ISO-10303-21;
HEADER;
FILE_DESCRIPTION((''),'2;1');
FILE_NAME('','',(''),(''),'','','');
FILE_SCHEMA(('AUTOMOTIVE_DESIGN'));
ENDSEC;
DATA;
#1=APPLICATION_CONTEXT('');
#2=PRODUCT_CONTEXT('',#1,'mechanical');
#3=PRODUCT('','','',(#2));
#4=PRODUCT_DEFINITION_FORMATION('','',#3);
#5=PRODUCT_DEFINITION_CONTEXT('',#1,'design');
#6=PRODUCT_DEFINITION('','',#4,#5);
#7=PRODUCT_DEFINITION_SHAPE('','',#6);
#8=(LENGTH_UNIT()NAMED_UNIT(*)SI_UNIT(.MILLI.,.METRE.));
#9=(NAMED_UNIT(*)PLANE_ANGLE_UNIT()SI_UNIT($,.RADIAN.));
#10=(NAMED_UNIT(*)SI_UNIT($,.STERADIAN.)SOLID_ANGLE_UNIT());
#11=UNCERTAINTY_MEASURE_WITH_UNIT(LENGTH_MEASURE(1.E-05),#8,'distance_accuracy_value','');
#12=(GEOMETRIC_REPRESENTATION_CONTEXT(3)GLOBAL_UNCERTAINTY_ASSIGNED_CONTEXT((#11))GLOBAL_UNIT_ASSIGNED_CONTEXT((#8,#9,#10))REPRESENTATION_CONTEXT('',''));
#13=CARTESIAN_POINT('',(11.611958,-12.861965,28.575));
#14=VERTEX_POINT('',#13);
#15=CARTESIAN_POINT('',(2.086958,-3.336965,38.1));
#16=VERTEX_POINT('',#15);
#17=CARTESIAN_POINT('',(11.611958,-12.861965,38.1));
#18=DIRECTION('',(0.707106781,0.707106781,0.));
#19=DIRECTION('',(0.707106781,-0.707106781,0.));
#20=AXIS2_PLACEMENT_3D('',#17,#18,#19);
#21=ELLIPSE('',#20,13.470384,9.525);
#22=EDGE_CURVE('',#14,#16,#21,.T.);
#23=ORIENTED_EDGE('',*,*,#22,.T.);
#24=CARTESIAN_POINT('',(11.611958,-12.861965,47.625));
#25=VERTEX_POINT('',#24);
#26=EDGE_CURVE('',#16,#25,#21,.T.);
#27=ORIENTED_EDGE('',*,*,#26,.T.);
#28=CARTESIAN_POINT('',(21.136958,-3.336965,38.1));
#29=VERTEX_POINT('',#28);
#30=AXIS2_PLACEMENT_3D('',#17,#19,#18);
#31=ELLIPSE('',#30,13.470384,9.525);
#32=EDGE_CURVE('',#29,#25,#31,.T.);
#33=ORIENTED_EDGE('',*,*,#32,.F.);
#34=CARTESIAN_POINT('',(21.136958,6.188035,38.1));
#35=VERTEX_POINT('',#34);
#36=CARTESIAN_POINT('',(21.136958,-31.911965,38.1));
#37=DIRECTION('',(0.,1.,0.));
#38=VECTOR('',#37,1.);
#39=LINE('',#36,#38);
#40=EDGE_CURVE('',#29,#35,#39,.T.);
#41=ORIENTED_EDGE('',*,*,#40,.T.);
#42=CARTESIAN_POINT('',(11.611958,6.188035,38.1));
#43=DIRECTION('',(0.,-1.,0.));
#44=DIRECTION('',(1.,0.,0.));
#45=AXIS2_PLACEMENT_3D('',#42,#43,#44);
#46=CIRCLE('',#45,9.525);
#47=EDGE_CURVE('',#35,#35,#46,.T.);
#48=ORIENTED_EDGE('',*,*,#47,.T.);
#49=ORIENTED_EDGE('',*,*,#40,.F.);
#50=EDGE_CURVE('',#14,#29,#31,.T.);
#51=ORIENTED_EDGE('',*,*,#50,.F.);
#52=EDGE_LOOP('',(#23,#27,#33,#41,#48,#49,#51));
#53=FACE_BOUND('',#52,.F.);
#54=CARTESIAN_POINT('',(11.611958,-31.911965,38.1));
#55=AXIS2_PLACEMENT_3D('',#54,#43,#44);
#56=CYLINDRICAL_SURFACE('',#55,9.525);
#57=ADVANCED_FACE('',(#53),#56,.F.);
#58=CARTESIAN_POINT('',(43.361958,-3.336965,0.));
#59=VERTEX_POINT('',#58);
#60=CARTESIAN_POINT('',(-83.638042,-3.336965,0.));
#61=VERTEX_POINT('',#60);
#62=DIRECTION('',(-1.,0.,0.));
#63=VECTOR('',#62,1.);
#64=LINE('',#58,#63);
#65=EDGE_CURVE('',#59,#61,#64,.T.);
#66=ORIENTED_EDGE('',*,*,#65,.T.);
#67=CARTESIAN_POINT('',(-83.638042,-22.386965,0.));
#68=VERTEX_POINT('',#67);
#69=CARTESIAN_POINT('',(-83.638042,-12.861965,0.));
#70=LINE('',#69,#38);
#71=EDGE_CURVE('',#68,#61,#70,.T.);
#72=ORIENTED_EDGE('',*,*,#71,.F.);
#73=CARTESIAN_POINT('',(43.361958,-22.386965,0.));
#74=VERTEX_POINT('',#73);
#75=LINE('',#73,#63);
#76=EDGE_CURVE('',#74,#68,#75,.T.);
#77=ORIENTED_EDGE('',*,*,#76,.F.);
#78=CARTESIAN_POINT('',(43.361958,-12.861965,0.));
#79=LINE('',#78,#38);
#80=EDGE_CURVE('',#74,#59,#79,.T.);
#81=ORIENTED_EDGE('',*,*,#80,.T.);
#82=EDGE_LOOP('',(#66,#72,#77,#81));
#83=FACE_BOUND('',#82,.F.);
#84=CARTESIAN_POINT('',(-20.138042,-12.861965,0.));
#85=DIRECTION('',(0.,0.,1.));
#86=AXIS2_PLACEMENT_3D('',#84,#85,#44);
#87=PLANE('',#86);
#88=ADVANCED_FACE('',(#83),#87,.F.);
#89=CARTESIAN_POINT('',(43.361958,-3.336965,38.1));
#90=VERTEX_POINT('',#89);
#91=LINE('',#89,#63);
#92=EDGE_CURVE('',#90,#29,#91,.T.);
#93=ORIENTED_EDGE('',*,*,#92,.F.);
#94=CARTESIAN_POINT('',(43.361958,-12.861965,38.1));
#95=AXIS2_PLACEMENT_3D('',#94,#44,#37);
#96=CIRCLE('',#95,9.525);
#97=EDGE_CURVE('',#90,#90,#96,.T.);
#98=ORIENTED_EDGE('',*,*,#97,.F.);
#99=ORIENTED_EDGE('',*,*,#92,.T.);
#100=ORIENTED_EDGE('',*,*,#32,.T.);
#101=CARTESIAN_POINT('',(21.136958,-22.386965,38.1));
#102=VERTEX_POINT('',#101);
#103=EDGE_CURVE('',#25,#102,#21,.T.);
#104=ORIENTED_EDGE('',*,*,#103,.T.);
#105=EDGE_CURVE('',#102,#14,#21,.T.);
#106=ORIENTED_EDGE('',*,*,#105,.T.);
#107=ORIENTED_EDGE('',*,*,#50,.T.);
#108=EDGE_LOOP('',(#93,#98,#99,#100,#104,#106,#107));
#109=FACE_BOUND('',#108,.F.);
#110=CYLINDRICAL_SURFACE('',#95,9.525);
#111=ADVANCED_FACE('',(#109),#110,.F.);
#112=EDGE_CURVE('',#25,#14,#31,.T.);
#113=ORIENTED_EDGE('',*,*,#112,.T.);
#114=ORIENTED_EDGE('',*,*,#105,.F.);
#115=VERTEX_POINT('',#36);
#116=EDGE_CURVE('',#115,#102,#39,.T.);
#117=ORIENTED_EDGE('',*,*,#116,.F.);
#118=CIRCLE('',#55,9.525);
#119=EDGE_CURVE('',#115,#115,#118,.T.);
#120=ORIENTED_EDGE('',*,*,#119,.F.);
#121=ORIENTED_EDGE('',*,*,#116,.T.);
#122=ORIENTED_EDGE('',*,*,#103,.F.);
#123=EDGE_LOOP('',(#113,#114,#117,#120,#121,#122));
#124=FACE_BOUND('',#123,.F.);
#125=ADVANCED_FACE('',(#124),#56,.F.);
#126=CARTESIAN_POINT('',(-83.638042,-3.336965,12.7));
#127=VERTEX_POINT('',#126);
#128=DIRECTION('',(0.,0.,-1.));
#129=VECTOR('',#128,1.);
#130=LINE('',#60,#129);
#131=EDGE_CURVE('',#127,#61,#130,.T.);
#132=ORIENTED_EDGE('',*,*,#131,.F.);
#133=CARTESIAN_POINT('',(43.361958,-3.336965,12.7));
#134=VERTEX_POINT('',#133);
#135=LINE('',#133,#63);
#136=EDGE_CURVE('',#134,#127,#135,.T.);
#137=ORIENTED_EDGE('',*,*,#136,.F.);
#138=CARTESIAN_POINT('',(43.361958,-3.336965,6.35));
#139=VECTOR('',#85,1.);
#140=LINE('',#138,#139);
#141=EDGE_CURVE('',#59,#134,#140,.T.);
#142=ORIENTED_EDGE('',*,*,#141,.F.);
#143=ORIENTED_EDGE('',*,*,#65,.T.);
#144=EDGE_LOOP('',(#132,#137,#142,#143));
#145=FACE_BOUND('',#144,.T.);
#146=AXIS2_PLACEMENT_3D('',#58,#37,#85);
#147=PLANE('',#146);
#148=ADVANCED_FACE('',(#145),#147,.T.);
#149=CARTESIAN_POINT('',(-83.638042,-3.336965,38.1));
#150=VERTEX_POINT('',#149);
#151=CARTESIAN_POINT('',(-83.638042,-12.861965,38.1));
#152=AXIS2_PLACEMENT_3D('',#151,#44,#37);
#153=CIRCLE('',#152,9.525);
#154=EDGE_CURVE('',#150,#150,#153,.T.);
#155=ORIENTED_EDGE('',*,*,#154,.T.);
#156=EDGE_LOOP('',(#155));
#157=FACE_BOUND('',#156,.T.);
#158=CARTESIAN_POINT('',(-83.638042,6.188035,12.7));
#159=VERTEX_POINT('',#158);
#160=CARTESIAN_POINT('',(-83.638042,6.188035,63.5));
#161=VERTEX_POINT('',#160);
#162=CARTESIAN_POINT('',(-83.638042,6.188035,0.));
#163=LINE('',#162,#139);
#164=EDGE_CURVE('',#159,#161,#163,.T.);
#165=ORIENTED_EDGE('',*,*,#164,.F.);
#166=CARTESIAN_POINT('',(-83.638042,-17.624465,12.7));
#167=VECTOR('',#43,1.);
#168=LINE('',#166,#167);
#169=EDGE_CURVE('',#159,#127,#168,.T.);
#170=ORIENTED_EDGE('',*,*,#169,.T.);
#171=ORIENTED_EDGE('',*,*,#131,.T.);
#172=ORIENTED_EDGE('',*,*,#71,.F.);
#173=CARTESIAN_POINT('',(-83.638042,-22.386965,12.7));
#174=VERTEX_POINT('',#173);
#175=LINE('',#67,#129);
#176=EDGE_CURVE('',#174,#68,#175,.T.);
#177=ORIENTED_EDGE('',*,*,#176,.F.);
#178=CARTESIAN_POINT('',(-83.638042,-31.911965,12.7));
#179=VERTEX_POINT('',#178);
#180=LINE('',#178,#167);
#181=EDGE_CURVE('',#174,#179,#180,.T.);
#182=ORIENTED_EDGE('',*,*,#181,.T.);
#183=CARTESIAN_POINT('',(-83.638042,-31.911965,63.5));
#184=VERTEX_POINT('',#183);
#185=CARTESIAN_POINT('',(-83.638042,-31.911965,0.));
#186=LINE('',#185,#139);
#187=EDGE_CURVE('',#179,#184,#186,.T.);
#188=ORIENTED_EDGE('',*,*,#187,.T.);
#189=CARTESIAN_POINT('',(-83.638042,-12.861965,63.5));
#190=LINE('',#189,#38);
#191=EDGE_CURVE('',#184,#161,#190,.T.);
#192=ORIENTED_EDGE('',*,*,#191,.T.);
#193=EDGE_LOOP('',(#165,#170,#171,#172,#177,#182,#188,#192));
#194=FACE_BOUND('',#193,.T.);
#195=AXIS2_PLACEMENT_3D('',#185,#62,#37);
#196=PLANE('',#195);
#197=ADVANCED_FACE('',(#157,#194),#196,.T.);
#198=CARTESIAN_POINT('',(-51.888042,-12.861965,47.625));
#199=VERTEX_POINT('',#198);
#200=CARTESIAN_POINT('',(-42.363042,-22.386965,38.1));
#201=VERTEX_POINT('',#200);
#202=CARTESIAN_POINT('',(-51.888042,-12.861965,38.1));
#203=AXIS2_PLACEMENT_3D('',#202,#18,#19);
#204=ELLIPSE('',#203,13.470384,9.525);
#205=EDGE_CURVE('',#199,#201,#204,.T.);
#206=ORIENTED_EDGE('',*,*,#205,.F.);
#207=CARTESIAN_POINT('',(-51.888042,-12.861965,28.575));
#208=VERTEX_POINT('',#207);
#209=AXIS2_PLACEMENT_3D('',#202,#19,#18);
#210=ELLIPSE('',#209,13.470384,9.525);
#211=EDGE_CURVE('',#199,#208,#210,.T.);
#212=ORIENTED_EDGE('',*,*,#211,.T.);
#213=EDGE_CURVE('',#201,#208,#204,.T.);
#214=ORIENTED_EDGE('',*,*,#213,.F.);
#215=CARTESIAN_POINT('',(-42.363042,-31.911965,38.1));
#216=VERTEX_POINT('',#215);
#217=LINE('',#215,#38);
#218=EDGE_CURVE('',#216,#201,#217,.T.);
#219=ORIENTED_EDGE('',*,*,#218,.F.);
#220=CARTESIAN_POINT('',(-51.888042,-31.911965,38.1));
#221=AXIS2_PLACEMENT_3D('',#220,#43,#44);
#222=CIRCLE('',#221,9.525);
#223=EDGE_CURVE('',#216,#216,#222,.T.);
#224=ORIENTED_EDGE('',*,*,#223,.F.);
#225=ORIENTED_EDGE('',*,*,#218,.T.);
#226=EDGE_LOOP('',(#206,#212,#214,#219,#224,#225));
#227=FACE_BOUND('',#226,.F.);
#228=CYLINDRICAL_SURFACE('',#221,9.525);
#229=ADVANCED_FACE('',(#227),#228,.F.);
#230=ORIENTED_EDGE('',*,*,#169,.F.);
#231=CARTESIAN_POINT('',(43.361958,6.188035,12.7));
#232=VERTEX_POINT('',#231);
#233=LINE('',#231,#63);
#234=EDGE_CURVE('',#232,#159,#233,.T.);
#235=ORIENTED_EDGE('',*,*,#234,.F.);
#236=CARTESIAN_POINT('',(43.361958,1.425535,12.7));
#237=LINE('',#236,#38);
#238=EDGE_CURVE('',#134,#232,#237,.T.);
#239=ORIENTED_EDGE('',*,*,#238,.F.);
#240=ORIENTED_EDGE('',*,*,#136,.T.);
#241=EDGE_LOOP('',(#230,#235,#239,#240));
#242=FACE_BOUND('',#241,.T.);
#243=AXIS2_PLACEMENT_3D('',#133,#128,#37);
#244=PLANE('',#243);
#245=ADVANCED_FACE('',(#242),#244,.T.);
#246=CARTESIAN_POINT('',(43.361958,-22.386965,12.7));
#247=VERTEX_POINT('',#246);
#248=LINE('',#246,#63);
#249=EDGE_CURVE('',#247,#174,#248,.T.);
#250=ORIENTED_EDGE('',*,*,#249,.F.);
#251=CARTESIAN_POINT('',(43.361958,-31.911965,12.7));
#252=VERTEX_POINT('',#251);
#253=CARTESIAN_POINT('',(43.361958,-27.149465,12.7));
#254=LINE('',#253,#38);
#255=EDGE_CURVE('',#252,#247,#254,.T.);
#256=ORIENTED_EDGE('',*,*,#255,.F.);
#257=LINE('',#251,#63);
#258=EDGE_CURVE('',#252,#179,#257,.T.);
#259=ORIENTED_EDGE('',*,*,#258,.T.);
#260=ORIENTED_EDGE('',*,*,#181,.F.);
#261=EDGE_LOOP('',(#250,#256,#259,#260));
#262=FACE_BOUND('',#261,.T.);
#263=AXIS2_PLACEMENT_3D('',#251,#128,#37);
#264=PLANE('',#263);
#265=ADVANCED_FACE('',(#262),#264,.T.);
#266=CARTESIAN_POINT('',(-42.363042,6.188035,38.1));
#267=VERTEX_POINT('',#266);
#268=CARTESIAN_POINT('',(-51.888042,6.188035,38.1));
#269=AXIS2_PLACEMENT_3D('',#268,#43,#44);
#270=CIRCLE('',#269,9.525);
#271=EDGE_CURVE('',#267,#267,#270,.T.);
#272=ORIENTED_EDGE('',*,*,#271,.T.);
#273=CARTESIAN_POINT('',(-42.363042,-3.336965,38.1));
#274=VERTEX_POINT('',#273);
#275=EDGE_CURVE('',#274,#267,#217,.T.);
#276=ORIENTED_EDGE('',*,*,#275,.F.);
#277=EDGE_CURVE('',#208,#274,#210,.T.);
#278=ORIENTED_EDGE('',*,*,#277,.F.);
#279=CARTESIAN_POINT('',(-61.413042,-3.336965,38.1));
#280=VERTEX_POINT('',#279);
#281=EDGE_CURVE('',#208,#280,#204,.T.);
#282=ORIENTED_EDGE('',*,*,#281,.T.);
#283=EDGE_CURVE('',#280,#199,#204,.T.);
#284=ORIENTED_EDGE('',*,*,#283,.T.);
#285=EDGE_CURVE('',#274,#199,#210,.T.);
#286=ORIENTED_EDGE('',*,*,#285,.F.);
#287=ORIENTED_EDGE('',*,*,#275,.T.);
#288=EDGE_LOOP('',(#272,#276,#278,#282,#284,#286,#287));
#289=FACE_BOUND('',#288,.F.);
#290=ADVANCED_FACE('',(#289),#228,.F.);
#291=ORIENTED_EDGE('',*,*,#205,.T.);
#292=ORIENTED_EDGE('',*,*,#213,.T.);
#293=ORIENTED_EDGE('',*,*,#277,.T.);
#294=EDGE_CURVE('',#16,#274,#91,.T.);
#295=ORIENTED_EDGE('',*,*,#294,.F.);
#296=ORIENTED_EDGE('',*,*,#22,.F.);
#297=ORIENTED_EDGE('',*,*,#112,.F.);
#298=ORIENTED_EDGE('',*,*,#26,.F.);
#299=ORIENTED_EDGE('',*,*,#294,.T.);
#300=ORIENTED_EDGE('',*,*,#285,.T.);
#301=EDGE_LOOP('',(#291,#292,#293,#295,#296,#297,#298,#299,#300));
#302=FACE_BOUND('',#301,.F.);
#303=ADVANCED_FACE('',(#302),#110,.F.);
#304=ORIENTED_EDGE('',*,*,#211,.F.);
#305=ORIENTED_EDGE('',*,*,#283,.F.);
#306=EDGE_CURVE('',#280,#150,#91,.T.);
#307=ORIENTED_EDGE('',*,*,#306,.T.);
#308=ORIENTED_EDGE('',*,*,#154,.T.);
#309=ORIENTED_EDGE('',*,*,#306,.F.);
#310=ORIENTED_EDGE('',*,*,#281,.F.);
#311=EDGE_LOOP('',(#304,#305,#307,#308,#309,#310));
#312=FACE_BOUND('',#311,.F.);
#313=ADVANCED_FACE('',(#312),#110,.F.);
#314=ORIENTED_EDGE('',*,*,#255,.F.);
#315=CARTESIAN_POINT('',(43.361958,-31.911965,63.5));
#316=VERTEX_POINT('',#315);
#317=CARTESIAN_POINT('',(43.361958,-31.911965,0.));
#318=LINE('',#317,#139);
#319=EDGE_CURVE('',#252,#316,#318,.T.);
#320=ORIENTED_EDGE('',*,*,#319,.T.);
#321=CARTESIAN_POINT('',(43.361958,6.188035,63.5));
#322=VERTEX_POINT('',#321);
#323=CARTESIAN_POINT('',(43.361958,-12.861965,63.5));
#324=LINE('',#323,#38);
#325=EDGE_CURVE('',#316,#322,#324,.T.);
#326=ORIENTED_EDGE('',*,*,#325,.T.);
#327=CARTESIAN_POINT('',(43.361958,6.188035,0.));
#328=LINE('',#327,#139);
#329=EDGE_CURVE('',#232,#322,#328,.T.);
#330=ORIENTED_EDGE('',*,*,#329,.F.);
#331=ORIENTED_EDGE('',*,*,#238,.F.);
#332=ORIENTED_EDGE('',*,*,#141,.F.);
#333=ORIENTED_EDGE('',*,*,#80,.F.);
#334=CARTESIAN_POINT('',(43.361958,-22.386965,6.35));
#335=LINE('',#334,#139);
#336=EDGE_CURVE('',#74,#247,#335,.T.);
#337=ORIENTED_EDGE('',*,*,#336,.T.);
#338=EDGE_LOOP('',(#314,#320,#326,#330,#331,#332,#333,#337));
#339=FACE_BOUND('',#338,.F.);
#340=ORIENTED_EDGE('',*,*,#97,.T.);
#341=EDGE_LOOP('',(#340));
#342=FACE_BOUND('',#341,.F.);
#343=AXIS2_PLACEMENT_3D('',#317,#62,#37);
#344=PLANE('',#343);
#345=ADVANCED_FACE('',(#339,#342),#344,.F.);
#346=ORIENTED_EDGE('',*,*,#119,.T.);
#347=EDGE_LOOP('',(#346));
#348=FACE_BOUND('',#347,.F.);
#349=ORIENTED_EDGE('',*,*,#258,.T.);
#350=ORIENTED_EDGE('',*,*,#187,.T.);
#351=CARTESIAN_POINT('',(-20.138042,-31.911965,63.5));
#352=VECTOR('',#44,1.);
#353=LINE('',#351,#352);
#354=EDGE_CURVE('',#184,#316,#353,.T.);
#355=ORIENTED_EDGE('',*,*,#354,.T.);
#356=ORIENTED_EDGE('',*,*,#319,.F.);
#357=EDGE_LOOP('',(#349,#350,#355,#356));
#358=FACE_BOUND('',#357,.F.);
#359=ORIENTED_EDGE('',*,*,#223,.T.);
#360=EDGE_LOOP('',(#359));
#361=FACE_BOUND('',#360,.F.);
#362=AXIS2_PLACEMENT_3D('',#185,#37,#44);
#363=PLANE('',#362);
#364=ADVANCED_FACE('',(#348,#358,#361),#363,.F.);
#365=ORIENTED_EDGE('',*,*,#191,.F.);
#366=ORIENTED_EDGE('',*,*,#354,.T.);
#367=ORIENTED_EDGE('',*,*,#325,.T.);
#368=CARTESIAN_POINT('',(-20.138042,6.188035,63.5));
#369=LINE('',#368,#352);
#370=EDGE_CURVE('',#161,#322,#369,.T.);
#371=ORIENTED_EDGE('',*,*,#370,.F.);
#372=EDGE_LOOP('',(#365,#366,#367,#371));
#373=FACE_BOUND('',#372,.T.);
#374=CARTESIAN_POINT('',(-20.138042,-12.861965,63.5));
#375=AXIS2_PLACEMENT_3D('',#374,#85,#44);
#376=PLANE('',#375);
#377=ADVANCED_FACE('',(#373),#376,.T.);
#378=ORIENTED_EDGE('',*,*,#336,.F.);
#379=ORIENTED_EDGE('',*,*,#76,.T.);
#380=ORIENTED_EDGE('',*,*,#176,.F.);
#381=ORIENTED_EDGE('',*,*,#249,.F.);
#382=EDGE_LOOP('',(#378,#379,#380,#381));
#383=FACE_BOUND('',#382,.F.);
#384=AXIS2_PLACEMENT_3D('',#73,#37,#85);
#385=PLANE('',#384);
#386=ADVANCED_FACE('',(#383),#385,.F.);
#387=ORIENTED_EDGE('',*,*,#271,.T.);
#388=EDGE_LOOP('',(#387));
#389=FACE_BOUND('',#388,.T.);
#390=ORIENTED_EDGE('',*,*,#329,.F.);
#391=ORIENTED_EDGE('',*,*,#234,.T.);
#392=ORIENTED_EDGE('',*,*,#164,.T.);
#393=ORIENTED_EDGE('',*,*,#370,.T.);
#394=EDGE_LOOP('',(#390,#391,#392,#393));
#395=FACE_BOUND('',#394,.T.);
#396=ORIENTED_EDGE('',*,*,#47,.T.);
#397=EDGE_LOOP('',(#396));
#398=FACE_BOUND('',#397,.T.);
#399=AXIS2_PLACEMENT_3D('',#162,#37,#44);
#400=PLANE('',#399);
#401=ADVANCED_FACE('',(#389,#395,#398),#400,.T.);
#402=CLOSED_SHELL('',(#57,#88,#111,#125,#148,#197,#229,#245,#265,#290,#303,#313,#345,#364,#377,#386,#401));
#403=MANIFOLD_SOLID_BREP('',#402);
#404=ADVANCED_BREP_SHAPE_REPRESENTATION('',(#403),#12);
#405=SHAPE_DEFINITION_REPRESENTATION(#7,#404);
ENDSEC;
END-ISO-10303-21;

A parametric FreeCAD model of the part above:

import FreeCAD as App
import Part
import Sketcher

V = App.Vector
Q = App.Units.Quantity

doc = App.newDocument("Part")
body = doc.addObject("PartDesign::Body", "Body")

sketch1 = body.newObject("Sketcher::SketchObject", "Sketch")
sketch1.AttachmentSupport = (doc.getObject("XY_Plane"), [""])
sketch1.MapMode = "FlatFace"
sketch1.addGeometry(Part.LineSegment(V(-83.638042, 6.188035, 0), V(-83.638042, -31.911965, 0)), False)
sketch1.addGeometry(Part.LineSegment(V(-83.638042, -31.911965, 0), V(43.361958, -31.911965, 0)), False)
sketch1.addGeometry(Part.LineSegment(V(43.361958, -31.911965, 0), V(43.361958, 6.188035, 0)), False)
sketch1.addGeometry(Part.LineSegment(V(43.361958, 6.188035, 0), V(-83.638042, 6.188035, 0)), False)
sketch1.addConstraint(Sketcher.Constraint("Coincident", 0, 2, 1, 1))
sketch1.addConstraint(Sketcher.Constraint("Coincident", 1, 2, 2, 1))
sketch1.addConstraint(Sketcher.Constraint("Coincident", 2, 2, 3, 1))
sketch1.addConstraint(Sketcher.Constraint("Coincident", 3, 2, 0, 1))
sketch1.addConstraint(Sketcher.Constraint("Vertical", 0))
sketch1.addConstraint(Sketcher.Constraint("Horizontal", 1))
sketch1.addConstraint(Sketcher.Constraint("Vertical", 2))
sketch1.addConstraint(Sketcher.Constraint("Horizontal", 3))
sketch1.addConstraint(Sketcher.Constraint("DistanceX", 1, 1, 1, 2, Q("5 in")))
sketch1.addConstraint(Sketcher.Constraint("DistanceY", 0, 2, 0, 1, Q("1.5 in")))
sketch1.addConstraint(Sketcher.Constraint("DistanceX", 0, 2, -1, 1, Q("83.638042 mm")))
sketch1.addConstraint(Sketcher.Constraint("DistanceY", 0, 2, -1, 1, Q("31.911965 mm")))
pad1 = body.newObject("PartDesign::Pad", "Pad")
pad1.Profile = sketch1
pad1.Length = Q("2.5 in")

sketch2 = body.newObject("Sketcher::SketchObject", "Sketch001")
sketch2.AttachmentSupport = (doc.getObject("YZ_Plane"), [""])
sketch2.MapMode = "FlatFace"
sketch2.AttachmentOffset = App.Placement(V(0, 0, 43.361958), App.Rotation())
sketch2.addGeometry(Part.LineSegment(V(-31.911965, 12.7, 0), V(-31.911965, 0, 0)), False)
sketch2.addGeometry(Part.LineSegment(V(-31.911965, 0, 0), V(-22.386965, 0, 0)), False)
sketch2.addGeometry(Part.LineSegment(V(-22.386965, 0, 0), V(-22.386965, 12.7, 0)), False)
sketch2.addGeometry(Part.LineSegment(V(-22.386965, 12.7, 0), V(-31.911965, 12.7, 0)), False)
sketch2.addConstraint(Sketcher.Constraint("Coincident", 0, 2, 1, 1))
sketch2.addConstraint(Sketcher.Constraint("Coincident", 1, 2, 2, 1))
sketch2.addConstraint(Sketcher.Constraint("Coincident", 2, 2, 3, 1))
sketch2.addConstraint(Sketcher.Constraint("Coincident", 3, 2, 0, 1))
sketch2.addConstraint(Sketcher.Constraint("Vertical", 0))
sketch2.addConstraint(Sketcher.Constraint("Horizontal", 1))
sketch2.addConstraint(Sketcher.Constraint("Vertical", 2))
sketch2.addConstraint(Sketcher.Constraint("Horizontal", 3))
sketch2.addConstraint(Sketcher.Constraint("PointOnObject", 0, 2, -1))
sketch2.addConstraint(Sketcher.Constraint("DistanceY", 0, 2, 0, 1, Q("0.5 in")))
sketch2.addConstraint(Sketcher.Constraint("DistanceX", 1, 1, 1, 2, Q("0.375 in")))
sketch2.addConstraint(Sketcher.Constraint("DistanceX", 0, 2, -1, 1, Q("31.911965 mm")))
pocket1 = body.newObject("PartDesign::Pocket", "Pocket")
pocket1.Profile = sketch2
pocket1.Type = "ThroughAll"

sketch3 = body.newObject("Sketcher::SketchObject", "Sketch002")
sketch3.AttachmentSupport = (doc.getObject("YZ_Plane"), [""])
sketch3.MapMode = "FlatFace"
sketch3.AttachmentOffset = App.Placement(V(0, 0, 43.361958), App.Rotation())
sketch3.addGeometry(Part.LineSegment(V(-3.336965, 12.7, 0), V(-3.336965, 0, 0)), False)
sketch3.addGeometry(Part.LineSegment(V(-3.336965, 0, 0), V(6.188035, 0, 0)), False)
sketch3.addGeometry(Part.LineSegment(V(6.188035, 0, 0), V(6.188035, 12.7, 0)), False)
sketch3.addGeometry(Part.LineSegment(V(6.188035, 12.7, 0), V(-3.336965, 12.7, 0)), False)
sketch3.addConstraint(Sketcher.Constraint("Coincident", 0, 2, 1, 1))
sketch3.addConstraint(Sketcher.Constraint("Coincident", 1, 2, 2, 1))
sketch3.addConstraint(Sketcher.Constraint("Coincident", 2, 2, 3, 1))
sketch3.addConstraint(Sketcher.Constraint("Coincident", 3, 2, 0, 1))
sketch3.addConstraint(Sketcher.Constraint("Vertical", 0))
sketch3.addConstraint(Sketcher.Constraint("Horizontal", 1))
sketch3.addConstraint(Sketcher.Constraint("Vertical", 2))
sketch3.addConstraint(Sketcher.Constraint("Horizontal", 3))
sketch3.addConstraint(Sketcher.Constraint("PointOnObject", 0, 2, -1))
sketch3.addConstraint(Sketcher.Constraint("DistanceY", 0, 2, 0, 1, Q("0.5 in")))
sketch3.addConstraint(Sketcher.Constraint("DistanceX", 1, 1, 1, 2, Q("0.375 in")))
sketch3.addConstraint(Sketcher.Constraint("DistanceX", 0, 2, -1, 1, Q("3.336965 mm")))
pocket2 = body.newObject("PartDesign::Pocket", "Pocket001")
pocket2.Profile = sketch3
pocket2.Type = "ThroughAll"

sketch4 = body.newObject("Sketcher::SketchObject", "Sketch003")
sketch4.AttachmentSupport = (doc.getObject("YZ_Plane"), [""])
sketch4.MapMode = "FlatFace"
sketch4.AttachmentOffset = App.Placement(V(0, 0, 43.361958), App.Rotation())
sketch4.addGeometry(Part.Circle(V(-12.861965, 38.1, 0), V(0, 0, 1), 9.525), False)
sketch4.addConstraint(Sketcher.Constraint("Diameter", 0, Q("0.75 in")))
sketch4.addConstraint(Sketcher.Constraint("DistanceY", -1, 1, 0, 3, Q("1.5 in")))
sketch4.addConstraint(Sketcher.Constraint("DistanceX", 0, 3, -1, 1, Q("12.861965 mm")))
pocket3 = body.newObject("PartDesign::Pocket", "Pocket002")
pocket3.Profile = sketch4
pocket3.Type = "ThroughAll"

sketch5 = body.newObject("Sketcher::SketchObject", "Sketch004")
sketch5.AttachmentSupport = (doc.getObject("XZ_Plane"), [""])
sketch5.MapMode = "FlatFace"
sketch5.AttachmentOffset = App.Placement(V(0, 0, 31.911965), App.Rotation())
sketch5.addGeometry(Part.Circle(V(-51.888042, 38.1, 0), V(0, 0, 1), 9.525), False)
sketch5.addConstraint(Sketcher.Constraint("Diameter", 0, Q("0.75 in")))
sketch5.addConstraint(Sketcher.Constraint("DistanceY", -1, 1, 0, 3, Q("1.5 in")))
sketch5.addConstraint(Sketcher.Constraint("DistanceX", 0, 3, -1, 1, Q("51.888042 mm")))
pocket4 = body.newObject("PartDesign::Pocket", "Pocket003")
pocket4.Profile = sketch5
pocket4.Type = "ThroughAll"

sketch6 = body.newObject("Sketcher::SketchObject", "Sketch005")
sketch6.AttachmentSupport = (doc.getObject("XZ_Plane"), [""])
sketch6.MapMode = "FlatFace"
sketch6.AttachmentOffset = App.Placement(V(0, 0, 31.911965), App.Rotation())
sketch6.addGeometry(Part.Circle(V(11.611958, 38.1, 0), V(0, 0, 1), 9.525), False)
sketch6.addConstraint(Sketcher.Constraint("Diameter", 0, Q("0.75 in")))
sketch6.addConstraint(Sketcher.Constraint("DistanceY", -1, 1, 0, 3, Q("1.5 in")))
sketch6.addConstraint(Sketcher.Constraint("DistanceX", -1, 1, 0, 3, Q("11.611958 mm")))
pocket5 = body.newObject("PartDesign::Pocket", "Pocket004")
pocket5.Profile = sketch6
pocket5.Type = "ThroughAll"

doc.recompute()
